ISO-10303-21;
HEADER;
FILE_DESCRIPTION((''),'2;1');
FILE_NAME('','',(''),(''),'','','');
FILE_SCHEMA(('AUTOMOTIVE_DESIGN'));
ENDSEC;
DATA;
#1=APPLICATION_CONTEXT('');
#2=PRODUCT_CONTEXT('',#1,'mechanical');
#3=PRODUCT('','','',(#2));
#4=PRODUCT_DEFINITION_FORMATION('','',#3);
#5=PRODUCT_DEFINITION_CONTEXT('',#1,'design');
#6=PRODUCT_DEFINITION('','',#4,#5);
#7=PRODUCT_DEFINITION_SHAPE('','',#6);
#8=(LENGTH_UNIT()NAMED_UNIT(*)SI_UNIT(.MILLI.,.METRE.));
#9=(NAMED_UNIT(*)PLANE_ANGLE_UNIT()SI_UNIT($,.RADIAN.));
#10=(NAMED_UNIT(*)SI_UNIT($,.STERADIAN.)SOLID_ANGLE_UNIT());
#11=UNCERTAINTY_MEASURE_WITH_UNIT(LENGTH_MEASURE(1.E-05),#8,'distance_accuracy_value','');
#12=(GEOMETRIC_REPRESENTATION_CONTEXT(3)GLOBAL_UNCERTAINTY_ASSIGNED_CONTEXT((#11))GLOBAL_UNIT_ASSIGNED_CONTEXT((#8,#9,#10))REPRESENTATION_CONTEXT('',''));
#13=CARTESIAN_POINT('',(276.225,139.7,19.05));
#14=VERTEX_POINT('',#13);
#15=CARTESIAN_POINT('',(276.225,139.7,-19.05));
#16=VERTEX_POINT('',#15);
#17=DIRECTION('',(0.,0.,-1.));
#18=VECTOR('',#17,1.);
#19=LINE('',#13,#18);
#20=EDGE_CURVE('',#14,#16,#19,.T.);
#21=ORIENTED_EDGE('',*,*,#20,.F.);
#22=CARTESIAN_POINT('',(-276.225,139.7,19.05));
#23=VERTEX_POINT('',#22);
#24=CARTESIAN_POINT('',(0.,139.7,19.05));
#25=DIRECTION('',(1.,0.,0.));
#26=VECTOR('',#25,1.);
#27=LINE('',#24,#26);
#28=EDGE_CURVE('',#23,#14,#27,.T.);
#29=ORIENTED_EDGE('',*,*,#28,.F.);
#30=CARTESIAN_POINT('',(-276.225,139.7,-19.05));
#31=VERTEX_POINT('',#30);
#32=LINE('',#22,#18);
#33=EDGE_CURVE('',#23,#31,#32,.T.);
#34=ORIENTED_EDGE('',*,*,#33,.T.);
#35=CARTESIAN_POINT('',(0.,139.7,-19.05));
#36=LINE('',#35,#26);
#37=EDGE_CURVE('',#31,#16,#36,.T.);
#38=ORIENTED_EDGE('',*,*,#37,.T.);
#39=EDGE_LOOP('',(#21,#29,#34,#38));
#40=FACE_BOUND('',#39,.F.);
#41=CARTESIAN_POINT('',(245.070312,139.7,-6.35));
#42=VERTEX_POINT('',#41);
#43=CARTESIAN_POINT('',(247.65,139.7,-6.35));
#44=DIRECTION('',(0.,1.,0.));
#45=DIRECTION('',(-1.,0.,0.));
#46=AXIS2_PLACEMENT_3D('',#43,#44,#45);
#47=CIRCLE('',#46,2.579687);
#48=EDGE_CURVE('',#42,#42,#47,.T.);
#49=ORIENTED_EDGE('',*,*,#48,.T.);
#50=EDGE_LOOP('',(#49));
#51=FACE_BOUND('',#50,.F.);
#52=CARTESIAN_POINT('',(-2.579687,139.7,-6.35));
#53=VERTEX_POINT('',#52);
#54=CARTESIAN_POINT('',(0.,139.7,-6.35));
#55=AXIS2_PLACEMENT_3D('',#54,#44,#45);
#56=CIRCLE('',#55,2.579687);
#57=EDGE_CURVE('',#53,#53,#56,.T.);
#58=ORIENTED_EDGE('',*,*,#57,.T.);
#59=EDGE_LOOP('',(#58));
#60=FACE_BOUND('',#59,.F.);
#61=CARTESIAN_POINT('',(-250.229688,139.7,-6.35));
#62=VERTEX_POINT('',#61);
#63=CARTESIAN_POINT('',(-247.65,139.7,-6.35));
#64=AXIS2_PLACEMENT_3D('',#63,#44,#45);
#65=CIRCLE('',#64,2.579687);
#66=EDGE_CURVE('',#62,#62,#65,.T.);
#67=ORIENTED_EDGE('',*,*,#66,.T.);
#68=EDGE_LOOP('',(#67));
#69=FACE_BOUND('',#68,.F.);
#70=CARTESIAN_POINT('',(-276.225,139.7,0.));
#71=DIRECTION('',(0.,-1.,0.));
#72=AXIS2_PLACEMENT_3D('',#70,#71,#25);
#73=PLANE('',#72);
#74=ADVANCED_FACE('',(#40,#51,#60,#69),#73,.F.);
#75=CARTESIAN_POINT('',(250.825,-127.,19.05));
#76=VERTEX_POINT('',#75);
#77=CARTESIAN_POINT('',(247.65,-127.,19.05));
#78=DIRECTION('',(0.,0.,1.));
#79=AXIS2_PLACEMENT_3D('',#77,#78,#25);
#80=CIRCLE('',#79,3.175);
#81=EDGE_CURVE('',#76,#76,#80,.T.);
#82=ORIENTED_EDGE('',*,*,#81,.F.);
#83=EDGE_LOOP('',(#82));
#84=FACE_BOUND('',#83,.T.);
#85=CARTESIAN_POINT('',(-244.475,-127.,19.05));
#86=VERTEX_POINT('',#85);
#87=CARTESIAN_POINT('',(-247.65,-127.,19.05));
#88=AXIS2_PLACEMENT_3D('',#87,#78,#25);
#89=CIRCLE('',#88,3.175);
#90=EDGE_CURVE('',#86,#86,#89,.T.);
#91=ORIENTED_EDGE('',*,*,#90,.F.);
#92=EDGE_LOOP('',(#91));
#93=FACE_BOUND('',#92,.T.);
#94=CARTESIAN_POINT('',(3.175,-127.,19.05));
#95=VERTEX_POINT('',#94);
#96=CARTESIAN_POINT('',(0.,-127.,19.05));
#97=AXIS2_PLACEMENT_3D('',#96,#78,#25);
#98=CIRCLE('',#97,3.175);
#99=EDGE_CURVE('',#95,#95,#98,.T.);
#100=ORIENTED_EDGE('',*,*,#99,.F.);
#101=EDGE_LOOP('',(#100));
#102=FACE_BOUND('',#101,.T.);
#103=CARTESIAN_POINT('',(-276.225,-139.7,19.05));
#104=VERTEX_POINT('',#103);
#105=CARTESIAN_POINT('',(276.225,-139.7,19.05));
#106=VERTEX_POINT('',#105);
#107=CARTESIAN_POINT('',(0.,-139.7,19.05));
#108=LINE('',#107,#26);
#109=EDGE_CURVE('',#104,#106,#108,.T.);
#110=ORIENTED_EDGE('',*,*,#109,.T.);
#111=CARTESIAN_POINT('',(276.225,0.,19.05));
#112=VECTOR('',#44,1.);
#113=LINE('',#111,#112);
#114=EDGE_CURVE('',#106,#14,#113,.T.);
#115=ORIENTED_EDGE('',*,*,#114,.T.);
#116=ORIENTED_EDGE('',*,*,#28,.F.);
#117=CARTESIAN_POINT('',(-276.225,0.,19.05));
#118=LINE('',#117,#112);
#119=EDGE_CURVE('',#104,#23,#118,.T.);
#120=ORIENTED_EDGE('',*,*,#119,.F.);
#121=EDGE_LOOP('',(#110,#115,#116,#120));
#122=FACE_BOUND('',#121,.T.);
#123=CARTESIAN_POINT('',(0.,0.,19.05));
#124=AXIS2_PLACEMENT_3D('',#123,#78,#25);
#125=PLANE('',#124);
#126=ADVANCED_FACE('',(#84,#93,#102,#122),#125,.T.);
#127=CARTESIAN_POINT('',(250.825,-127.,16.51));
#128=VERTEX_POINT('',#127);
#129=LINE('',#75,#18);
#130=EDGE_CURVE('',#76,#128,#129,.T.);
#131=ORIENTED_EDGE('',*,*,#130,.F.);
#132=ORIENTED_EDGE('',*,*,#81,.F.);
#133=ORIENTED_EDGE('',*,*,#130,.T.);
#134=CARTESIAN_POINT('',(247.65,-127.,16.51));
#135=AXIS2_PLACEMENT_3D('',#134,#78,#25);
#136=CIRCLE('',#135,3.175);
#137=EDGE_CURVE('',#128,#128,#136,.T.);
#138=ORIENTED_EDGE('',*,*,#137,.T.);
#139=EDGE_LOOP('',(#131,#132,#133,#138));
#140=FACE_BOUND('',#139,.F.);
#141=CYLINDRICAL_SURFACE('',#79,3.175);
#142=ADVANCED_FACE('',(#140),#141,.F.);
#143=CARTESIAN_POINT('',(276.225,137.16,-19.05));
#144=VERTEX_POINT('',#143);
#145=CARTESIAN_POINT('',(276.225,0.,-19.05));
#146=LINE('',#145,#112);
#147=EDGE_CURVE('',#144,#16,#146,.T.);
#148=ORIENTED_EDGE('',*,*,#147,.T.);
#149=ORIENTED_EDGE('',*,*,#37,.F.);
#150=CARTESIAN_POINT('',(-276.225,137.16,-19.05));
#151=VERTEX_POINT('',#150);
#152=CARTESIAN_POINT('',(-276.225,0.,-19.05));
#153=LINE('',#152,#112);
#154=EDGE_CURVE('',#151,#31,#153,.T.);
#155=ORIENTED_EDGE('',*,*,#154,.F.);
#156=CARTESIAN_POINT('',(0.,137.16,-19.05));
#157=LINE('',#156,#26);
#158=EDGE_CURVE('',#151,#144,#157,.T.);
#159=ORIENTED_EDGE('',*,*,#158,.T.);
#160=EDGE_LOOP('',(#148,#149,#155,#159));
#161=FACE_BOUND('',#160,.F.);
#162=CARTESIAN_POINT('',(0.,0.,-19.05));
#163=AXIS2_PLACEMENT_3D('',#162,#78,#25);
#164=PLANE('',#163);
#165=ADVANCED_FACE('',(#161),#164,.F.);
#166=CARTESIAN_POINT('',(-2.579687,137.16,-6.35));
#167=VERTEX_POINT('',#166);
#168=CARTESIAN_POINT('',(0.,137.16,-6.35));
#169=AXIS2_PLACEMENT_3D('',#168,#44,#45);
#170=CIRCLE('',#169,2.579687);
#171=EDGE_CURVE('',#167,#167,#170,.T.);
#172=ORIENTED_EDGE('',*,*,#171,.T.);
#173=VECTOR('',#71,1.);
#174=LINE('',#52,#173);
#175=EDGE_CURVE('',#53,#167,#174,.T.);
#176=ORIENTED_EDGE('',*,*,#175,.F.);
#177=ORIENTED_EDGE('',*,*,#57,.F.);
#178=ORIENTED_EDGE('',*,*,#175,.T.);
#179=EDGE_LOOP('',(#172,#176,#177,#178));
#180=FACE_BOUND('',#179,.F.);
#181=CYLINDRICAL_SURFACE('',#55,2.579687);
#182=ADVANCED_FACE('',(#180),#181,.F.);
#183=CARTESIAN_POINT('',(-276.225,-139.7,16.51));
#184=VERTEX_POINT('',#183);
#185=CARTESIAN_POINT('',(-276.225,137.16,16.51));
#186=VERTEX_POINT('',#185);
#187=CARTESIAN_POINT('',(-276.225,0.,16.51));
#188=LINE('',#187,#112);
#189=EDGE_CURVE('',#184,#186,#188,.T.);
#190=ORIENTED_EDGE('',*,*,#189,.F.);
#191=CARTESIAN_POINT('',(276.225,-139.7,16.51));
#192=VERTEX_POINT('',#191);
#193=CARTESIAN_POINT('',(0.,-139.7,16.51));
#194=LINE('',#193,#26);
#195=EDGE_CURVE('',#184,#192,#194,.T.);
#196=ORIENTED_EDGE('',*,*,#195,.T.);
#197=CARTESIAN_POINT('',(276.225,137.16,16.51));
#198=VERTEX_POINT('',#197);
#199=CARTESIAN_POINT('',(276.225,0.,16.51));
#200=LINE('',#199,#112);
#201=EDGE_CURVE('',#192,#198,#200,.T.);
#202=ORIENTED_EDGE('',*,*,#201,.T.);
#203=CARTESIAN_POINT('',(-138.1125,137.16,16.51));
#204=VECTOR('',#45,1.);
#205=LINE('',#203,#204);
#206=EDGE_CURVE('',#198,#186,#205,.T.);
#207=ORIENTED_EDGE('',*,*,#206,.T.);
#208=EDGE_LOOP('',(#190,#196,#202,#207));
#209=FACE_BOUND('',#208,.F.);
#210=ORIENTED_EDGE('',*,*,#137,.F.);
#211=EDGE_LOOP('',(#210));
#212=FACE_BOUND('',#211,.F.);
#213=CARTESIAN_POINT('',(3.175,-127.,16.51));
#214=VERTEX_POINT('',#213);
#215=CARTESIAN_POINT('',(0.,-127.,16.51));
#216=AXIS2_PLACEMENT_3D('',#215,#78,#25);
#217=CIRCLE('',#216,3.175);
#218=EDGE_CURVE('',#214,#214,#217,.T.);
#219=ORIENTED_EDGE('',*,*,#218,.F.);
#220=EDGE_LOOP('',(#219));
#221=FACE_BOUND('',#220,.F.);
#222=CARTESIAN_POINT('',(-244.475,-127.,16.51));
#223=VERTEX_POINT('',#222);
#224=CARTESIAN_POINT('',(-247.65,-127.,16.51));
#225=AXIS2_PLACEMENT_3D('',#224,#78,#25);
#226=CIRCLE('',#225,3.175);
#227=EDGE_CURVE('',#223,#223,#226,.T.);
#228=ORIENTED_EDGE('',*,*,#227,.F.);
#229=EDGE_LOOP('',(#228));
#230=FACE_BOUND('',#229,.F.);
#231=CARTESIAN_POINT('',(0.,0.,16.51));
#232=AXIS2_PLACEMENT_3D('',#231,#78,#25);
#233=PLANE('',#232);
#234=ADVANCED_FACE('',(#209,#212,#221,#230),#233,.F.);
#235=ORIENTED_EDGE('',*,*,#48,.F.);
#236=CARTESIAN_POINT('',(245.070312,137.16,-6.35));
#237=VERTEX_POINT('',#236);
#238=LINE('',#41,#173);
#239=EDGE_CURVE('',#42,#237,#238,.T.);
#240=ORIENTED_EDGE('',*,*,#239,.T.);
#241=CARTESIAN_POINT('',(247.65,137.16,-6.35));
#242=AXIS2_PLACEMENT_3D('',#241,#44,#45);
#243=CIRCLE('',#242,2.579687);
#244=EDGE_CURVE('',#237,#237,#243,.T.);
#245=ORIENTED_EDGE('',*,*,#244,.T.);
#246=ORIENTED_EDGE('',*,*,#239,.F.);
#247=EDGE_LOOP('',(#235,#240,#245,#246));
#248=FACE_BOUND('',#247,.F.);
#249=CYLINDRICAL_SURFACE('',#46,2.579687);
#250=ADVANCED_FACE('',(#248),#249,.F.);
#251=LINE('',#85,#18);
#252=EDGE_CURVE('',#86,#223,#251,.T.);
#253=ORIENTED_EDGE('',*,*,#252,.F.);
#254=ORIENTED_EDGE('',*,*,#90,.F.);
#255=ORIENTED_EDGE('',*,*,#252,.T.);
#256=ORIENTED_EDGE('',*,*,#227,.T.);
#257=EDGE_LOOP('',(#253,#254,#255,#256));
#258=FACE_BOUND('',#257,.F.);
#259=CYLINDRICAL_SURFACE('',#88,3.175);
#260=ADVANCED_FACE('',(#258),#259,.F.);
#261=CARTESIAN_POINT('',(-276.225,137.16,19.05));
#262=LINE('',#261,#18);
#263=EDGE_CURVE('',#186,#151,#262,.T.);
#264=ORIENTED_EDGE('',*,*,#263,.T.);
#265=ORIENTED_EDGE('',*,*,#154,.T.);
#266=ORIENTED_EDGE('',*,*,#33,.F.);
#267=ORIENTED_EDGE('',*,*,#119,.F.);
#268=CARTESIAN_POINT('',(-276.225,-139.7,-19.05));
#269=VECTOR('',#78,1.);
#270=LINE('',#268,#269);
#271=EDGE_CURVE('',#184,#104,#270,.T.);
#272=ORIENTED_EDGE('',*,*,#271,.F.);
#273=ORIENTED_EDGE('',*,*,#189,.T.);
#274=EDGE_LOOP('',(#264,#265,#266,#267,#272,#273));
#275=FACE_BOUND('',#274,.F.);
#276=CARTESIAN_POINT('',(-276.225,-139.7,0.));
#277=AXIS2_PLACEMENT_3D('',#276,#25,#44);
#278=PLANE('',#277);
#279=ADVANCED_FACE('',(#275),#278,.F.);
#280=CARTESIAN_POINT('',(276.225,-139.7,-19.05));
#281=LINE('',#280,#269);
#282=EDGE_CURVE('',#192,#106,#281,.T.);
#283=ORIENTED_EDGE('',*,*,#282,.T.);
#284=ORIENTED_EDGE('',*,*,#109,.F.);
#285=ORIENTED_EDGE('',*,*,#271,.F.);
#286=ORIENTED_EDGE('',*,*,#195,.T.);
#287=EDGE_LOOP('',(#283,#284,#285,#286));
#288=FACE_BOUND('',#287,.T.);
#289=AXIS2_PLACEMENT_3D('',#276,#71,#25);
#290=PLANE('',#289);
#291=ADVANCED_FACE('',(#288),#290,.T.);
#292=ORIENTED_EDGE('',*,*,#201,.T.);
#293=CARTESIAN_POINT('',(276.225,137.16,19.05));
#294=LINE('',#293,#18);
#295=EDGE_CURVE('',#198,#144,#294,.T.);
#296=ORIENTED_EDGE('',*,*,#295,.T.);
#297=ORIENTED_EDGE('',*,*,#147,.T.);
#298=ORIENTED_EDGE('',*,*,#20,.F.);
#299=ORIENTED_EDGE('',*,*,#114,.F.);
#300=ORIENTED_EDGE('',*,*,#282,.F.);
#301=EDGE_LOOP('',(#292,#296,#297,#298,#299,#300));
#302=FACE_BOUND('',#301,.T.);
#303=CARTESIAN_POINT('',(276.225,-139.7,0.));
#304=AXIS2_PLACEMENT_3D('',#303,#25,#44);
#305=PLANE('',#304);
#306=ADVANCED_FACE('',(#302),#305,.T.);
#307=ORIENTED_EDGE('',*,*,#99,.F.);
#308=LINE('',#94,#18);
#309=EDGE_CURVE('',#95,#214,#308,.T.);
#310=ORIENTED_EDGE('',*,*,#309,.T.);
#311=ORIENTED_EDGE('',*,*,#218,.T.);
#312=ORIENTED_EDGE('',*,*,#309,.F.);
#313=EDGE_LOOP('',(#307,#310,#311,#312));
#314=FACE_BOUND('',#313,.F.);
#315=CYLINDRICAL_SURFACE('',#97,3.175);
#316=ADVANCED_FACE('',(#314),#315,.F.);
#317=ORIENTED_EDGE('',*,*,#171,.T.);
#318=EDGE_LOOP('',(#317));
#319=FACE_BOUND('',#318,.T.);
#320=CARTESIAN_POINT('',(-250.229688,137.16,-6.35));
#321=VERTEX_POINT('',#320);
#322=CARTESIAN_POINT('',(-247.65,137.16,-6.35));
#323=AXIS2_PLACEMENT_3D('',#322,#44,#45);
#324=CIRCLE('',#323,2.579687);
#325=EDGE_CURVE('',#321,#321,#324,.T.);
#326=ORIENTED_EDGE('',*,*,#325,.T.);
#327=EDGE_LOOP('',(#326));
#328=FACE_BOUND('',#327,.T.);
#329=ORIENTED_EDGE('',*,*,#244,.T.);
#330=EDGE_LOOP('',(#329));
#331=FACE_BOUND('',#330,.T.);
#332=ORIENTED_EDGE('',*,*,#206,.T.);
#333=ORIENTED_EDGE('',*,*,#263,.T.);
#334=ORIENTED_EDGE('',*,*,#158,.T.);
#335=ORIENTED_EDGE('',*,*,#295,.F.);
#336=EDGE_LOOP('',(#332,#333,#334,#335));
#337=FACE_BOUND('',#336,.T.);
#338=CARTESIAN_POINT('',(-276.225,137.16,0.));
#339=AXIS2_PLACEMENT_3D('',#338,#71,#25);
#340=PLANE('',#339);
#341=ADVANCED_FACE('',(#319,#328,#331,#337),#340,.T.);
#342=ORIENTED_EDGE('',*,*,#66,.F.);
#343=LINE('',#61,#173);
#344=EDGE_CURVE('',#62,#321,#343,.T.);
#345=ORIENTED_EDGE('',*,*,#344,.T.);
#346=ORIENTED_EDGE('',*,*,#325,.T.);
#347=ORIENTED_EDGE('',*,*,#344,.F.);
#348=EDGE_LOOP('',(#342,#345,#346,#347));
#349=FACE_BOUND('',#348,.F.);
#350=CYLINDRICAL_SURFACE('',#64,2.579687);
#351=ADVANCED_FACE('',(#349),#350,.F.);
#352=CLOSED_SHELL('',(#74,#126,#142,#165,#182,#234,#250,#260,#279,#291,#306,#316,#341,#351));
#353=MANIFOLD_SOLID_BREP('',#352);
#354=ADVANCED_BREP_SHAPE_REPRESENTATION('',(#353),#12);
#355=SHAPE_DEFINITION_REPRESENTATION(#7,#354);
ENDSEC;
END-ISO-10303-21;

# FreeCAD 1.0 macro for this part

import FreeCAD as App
import Part
import Sketcher
from FreeCAD import Vector
Q = App.Units.Quantity


def faces_at(feature, points):
    """Names of the faces that lie closest to the given points."""
    faces = feature.Shape.Faces
    near = lambda p: min(range(len(faces)), key=lambda i: faces[i].distToShape(Part.Vertex(*p))[0])
    return sorted({f"Face{near(p) + 1}" for p in points})


def add_polygon(sketch, points):
    """Adds a closed chain of lines whose ends are joined by coincident constraints."""
    first, n = sketch.GeometryCount, len(points)
    for a, b in zip(points, points[1:] + points[:1]):
        sketch.addGeometry(Part.LineSegment(App.Vector(*a, 0), App.Vector(*b, 0)), False)
    for i in range(n):
        sketch.addConstraint(Sketcher.Constraint("Coincident", first + i, 2, first + (i + 1) % n, 1))

doc = App.newDocument("Part")
body = doc.addObject("PartDesign::Body", "Body")

# Sketch on XY plane
sketch1 = body.newObject("Sketcher::SketchObject", "Sketch")
sketch1.AttachmentSupport = (doc.getObject("XY_Plane"), [""])
sketch1.MapMode = "FlatFace"
add_polygon(sketch1, [(-276, 140), (-276, -140), (276, -140), (276, 140)])  # lines 0-3
sketch1.addConstraint(Sketcher.Constraint("Vertical", 0))
sketch1.addConstraint(Sketcher.Constraint("Horizontal", 1))
sketch1.addConstraint(Sketcher.Constraint("Vertical", 2))
sketch1.addConstraint(Sketcher.Constraint("Horizontal", 3))
sketch1.addConstraint(Sketcher.Constraint("Symmetric", 0, 2, 2, 2, -1, 1))
sketch1.addConstraint(Sketcher.Constraint("DistanceY", 0, 2, 0, 1, Q("11 in")))
sketch1.addConstraint(Sketcher.Constraint("DistanceX", 1, 1, 1, 2, Q("21.75 in")))
pad1 = body.newObject("PartDesign::Pad", "Pad")
pad1.Profile = sketch1
pad1.Length = Q("1.5 in")
pad1.Midplane = True
doc.recompute()

thickness = body.newObject("PartDesign::Thickness", "Thickness")
thickness.Base = (pad1, faces_at(pad1, [
    (0, -139.7, 0),
    (-276.225, 0, 0),
    (0, 0, -19.05),
    (276.225, 0, 0),
]))
thickness.Value = Q("0.1 in")
thickness.Reversed = True
thickness.Join = "Arc"

# Sketch on XZ plane
sketch2 = body.newObject("Sketcher::SketchObject", "Sketch001")
sketch2.AttachmentSupport = (doc.getObject("XZ_Plane"), [""])
sketch2.MapMode = "FlatFace"
sketch2.AttachmentOffset = App.Placement(Vector(0, 0, -5.5 * 25.4), App.Rotation())
sketch2.addGeometry(Part.Circle(Vector(247.7, -6.3, 0), Vector(0, 0, 1), 2.6), False)
sketch2.addGeometry(Part.Circle(Vector(0, -6.3, 0), Vector(0, 0, 1), 2.6), False)
sketch2.addGeometry(Part.Circle(Vector(-247.7, -6.3, 0), Vector(0, 0, 1), 2.6), False)
sketch2.addConstraint(Sketcher.Constraint("Equal", 0, 1))
sketch2.addConstraint(Sketcher.Constraint("Equal", 1, 2))
sketch2.addConstraint(Sketcher.Constraint("Symmetric", 0, 3, 2, 3, -2))
sketch2.addConstraint(Sketcher.Constraint("PointOnObject", 1, 3, -2))
sketch2.addConstraint(Sketcher.Constraint("Horizontal", 0, 3, 1, 3))
sketch2.addConstraint(Sketcher.Constraint("Diameter", 0, Q("0.203125 in")))
sketch2.addConstraint(Sketcher.Constraint("DistanceX", 2, 3, 0, 3, Q("19.5 in")))
sketch2.addConstraint(Sketcher.Constraint("DistanceY", 0, 3, -1, 1, Q("0.25 in")))
pocket1 = body.newObject("PartDesign::Pocket", "Pocket")
pocket1.Profile = sketch2
pocket1.Type = "ThroughAll"
pocket1.Reversed = True

# Sketch on XY plane
sketch3 = body.newObject("Sketcher::SketchObject", "Sketch002")
sketch3.AttachmentSupport = (doc.getObject("XY_Plane"), [""])
sketch3.MapMode = "FlatFace"
sketch3.AttachmentOffset = App.Placement(Vector(0, 0, 0.75 * 25.4), App.Rotation())
sketch3.addGeometry(Part.Circle(Vector(-247.7, -127, 0), Vector(0, 0, 1), 3.2), False)
sketch3.addGeometry(Part.Circle(Vector(0, -127, 0), Vector(0, 0, 1), 3.2), False)
sketch3.addGeometry(Part.Circle(Vector(247.7, -127, 0), Vector(0, 0, 1), 3.2), False)
sketch3.addConstraint(Sketcher.Constraint("Equal", 0, 1))
sketch3.addConstraint(Sketcher.Constraint("Equal", 1, 2))
sketch3.addConstraint(Sketcher.Constraint("Symmetric", 0, 3, 2, 3, -2))
sketch3.addConstraint(Sketcher.Constraint("PointOnObject", 1, 3, -2))
sketch3.addConstraint(Sketcher.Constraint("Horizontal", 0, 3, 1, 3))
sketch3.addConstraint(Sketcher.Constraint("Diameter", 0, Q("0.25 in")))
sketch3.addConstraint(Sketcher.Constraint("DistanceY", 0, 3, -1, 1, Q("5 in")))
sketch3.addConstraint(Sketcher.Constraint("DistanceX", 0, 3, 2, 3, Q("19.5 in")))
pocket2 = body.newObject("PartDesign::Pocket", "Pocket001")
pocket2.Profile = sketch3
pocket2.Type = "ThroughAll"

doc.recompute()
